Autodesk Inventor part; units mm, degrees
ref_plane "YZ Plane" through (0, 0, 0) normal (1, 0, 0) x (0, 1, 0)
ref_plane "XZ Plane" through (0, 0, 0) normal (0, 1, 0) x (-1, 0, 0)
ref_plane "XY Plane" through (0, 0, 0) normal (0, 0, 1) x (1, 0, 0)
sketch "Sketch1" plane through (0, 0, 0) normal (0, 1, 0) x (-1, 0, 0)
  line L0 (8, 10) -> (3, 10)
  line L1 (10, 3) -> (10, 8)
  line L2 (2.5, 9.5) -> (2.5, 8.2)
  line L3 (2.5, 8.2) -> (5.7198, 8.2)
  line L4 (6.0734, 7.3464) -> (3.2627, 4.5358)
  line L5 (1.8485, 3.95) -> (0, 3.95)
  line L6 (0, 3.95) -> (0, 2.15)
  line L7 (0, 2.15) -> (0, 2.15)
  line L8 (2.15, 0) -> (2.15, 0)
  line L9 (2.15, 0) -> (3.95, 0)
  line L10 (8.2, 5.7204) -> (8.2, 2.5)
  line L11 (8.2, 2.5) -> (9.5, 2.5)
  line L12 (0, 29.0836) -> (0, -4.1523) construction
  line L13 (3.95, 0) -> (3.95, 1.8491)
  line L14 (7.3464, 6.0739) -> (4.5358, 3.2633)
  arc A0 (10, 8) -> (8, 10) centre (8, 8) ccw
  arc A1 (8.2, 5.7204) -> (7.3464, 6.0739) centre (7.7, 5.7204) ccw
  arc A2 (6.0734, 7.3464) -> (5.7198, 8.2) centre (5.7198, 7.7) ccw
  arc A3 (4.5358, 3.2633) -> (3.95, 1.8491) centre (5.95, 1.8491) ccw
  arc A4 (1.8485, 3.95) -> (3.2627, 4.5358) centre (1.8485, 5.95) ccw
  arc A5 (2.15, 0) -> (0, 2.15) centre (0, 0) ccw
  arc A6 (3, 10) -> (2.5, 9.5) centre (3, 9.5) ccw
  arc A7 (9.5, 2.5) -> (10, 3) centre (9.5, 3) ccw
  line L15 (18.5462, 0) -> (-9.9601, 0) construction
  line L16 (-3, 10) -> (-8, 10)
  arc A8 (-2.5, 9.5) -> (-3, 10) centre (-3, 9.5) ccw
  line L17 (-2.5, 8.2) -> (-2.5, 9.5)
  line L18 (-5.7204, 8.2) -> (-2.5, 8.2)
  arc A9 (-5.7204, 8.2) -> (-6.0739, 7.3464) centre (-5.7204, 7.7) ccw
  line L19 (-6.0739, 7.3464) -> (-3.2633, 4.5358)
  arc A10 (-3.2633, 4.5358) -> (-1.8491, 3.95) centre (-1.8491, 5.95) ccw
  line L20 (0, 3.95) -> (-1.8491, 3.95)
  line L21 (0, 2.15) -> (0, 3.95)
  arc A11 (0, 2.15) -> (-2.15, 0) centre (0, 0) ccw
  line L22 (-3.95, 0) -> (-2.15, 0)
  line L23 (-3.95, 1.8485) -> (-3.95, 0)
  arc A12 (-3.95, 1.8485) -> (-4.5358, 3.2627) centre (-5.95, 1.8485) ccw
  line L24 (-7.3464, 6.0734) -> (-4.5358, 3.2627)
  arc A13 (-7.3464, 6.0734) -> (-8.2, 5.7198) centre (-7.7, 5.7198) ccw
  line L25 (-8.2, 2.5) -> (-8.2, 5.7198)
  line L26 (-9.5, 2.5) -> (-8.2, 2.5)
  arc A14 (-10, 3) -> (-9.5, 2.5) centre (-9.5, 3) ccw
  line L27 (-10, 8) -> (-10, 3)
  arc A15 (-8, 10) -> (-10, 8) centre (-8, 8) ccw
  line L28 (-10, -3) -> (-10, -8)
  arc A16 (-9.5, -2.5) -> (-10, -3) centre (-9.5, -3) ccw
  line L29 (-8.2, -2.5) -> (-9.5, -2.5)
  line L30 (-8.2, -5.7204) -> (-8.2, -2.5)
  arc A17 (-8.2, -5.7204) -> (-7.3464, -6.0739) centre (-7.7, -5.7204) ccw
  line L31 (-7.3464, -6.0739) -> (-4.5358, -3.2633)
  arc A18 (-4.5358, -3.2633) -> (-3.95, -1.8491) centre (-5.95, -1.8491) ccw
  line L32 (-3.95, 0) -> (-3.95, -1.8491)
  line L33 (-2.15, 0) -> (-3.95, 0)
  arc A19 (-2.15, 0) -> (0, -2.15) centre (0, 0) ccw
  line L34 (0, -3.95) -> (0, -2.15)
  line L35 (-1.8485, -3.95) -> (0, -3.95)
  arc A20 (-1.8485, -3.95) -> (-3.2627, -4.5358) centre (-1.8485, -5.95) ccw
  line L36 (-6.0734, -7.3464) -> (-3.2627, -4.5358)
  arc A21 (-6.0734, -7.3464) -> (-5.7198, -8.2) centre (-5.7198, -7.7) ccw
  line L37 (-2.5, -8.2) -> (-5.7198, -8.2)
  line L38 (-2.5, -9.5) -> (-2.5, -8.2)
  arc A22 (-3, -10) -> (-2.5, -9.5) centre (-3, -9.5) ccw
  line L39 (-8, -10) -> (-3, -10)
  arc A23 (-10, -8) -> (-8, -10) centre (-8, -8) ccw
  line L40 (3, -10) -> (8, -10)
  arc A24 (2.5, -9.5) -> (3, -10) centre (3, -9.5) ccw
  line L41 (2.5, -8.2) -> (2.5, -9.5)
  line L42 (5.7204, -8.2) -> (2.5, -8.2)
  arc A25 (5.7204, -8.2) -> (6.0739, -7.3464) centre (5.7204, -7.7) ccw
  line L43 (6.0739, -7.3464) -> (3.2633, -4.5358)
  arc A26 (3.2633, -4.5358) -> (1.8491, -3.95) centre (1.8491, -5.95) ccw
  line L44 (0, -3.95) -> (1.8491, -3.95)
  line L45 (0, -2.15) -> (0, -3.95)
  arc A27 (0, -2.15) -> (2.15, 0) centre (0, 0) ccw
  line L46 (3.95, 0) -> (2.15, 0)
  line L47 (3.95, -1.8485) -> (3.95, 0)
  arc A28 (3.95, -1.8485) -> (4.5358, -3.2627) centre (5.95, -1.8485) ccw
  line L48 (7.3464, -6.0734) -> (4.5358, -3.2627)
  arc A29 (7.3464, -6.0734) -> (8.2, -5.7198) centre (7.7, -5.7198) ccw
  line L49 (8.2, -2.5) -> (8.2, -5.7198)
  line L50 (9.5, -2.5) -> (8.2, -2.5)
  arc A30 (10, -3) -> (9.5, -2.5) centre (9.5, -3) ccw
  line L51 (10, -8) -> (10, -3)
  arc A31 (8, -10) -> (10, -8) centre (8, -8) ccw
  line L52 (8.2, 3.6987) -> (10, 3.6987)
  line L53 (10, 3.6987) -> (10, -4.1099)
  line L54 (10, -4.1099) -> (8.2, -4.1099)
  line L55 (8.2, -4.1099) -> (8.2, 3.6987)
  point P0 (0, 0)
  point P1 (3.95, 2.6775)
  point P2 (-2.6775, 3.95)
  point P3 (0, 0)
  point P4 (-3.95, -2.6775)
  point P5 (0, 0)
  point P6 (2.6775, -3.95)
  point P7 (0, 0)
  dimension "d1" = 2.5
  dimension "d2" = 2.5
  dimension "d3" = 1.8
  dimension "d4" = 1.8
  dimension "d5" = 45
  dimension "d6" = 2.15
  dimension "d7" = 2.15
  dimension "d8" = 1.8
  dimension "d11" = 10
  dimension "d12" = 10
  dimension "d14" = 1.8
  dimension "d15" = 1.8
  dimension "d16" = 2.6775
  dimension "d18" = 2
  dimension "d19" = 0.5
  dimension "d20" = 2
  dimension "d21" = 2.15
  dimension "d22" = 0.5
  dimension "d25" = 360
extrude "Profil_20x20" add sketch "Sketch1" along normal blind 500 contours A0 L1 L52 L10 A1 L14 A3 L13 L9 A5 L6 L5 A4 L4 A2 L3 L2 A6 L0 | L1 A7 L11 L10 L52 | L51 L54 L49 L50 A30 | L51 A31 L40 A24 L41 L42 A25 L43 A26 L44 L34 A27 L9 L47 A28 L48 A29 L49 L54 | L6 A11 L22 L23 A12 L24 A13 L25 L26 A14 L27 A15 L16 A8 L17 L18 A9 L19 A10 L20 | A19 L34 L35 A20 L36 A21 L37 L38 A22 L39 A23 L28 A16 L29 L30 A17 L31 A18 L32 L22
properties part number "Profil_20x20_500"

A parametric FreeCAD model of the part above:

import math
import FreeCAD as App
import Part
import Sketcher

V = App.Vector
Q = App.Units.Quantity

doc = App.newDocument("Part")
body = doc.addObject("PartDesign::Body", "Body")

# Sketch on XZ plane
sketch1 = body.newObject("Sketcher::SketchObject", "Sketch")
sketch1.AttachmentSupport = (doc.getObject("XZ_Plane"), [""])
sketch1.MapMode = "FlatFace"
sketch1.addGeometry(Part.ArcOfCircle(Part.Circle(V(-8, 8, 0), V(0, 0, 1), 2), math.radians(90), math.radians(180)), False)
sketch1.addGeometry(Part.LineSegment(V(-8, 10, 0), V(-3, 10, 0)), False)
sketch1.addGeometry(Part.ArcOfCircle(Part.Circle(V(-3, 9.5, 0), V(0, 0, 1), 0.5), math.radians(0), math.radians(90)), False)
sketch1.addGeometry(Part.LineSegment(V(-2.5, 9.5, 0), V(-2.5, 8.2, 0)), False)
sketch1.addGeometry(Part.LineSegment(V(-2.5, 8.2, 0), V(-5.7198, 8.2, 0)), False)
sketch1.addGeometry(Part.ArcOfCircle(Part.Circle(V(-5.7198, 7.7, 0), V(0, 0, 1), 0.500066), math.radians(90), math.radians(225)), False)
sketch1.addGeometry(Part.LineSegment(V(-6.0734, 7.3464, 0), V(-3.2627, 4.5358, 0)), False)
sketch1.addGeometry(Part.ArcOfCircle(Part.Circle(V(-1.8485, 5.95, 0), V(0, 0, 1), 2), math.radians(-135), math.radians(-90)), False)
sketch1.addGeometry(Part.LineSegment(V(-1.8485, 3.95, 0), V(1.8491, 3.95, 0)), False)
sketch1.addGeometry(Part.ArcOfCircle(Part.Circle(V(1.8491, 5.95, 0), V(0, 0, 1), 1.999981), math.radians(-90), math.radians(-45)), False)
sketch1.addGeometry(Part.LineSegment(V(3.2633, 4.5358, 0), V(6.0739, 7.3464, 0)), False)
sketch1.addGeometry(Part.ArcOfCircle(Part.Circle(V(5.7204, 7.7, 0), V(0, 0, 1), 0.5), math.radians(-45.008103), math.radians(90)), False)
sketch1.addGeometry(Part.LineSegment(V(5.7204, 8.2, 0), V(2.5, 8.2, 0)), False)
sketch1.addGeometry(Part.LineSegment(V(2.5, 8.2, 0), V(2.5, 9.5, 0)), False)
sketch1.addGeometry(Part.ArcOfCircle(Part.Circle(V(3, 9.5, 0), V(0, 0, 1), 0.5), math.radians(90), math.radians(180)), False)
sketch1.addGeometry(Part.LineSegment(V(3, 10, 0), V(8, 10, 0)), False)
sketch1.addGeometry(Part.ArcOfCircle(Part.Circle(V(8, 8, 0), V(0, 0, 1), 2), math.radians(0), math.radians(90)), False)
sketch1.addGeometry(Part.LineSegment(V(10, 8, 0), V(10, 3, 0)), False)
sketch1.addGeometry(Part.ArcOfCircle(Part.Circle(V(9.5, 3, 0), V(0, 0, 1), 0.5), math.radians(-90), math.radians(0)), False)
sketch1.addGeometry(Part.LineSegment(V(9.5, 2.5, 0), V(8.2, 2.5, 0)), False)
sketch1.addGeometry(Part.LineSegment(V(8.2, 2.5, 0), V(8.2, 5.7198, 0)), False)
sketch1.addGeometry(Part.ArcOfCircle(Part.Circle(V(7.7, 5.7198, 0), V(0, 0, 1), 0.500066), math.radians(0), math.radians(135)), False)
sketch1.addGeometry(Part.LineSegment(V(7.3464, 6.0734, 0), V(4.5358, 3.2627, 0)), False)
sketch1.addGeometry(Part.ArcOfCircle(Part.Circle(V(5.95, 1.8485, 0), V(0, 0, 1), 2), math.radians(135), math.radians(180)), False)
sketch1.addGeometry(Part.LineSegment(V(3.95, 1.8485, 0), V(3.95, -1.8491, 0)), False)
sketch1.addGeometry(Part.ArcOfCircle(Part.Circle(V(5.95, -1.8491, 0), V(0, 0, 1), 1.999981), math.radians(180), math.radians(225)), False)
sketch1.addGeometry(Part.LineSegment(V(4.5358, -3.2633, 0), V(7.3464, -6.0739, 0)), False)
sketch1.addGeometry(Part.ArcOfCircle(Part.Circle(V(7.7, -5.7204, 0), V(0, 0, 1), 0.5), math.radians(-135.008103), math.radians(0)), False)
sketch1.addGeometry(Part.LineSegment(V(8.2, -5.7204, 0), V(8.2, -2.5, 0)), False)
sketch1.addGeometry(Part.LineSegment(V(8.2, -2.5, 0), V(9.5, -2.5, 0)), False)
sketch1.addGeometry(Part.ArcOfCircle(Part.Circle(V(9.5, -3, 0), V(0, 0, 1), 0.5), math.radians(0), math.radians(90)), False)
sketch1.addGeometry(Part.LineSegment(V(10, -3, 0), V(10, -8, 0)), False)
sketch1.addGeometry(Part.ArcOfCircle(Part.Circle(V(8, -8, 0), V(0, 0, 1), 2), math.radians(-90), math.radians(0)), False)
sketch1.addGeometry(Part.LineSegment(V(8, -10, 0), V(3, -10, 0)), False)
sketch1.addGeometry(Part.ArcOfCircle(Part.Circle(V(3, -9.5, 0), V(0, 0, 1), 0.5), math.radians(180), math.radians(270)), False)
sketch1.addGeometry(Part.LineSegment(V(2.5, -9.5, 0), V(2.5, -8.2, 0)), False)
sketch1.addGeometry(Part.LineSegment(V(2.5, -8.2, 0), V(5.7198, -8.2, 0)), False)
sketch1.addGeometry(Part.ArcOfCircle(Part.Circle(V(5.7198, -7.7, 0), V(0, 0, 1), 0.500066), math.radians(-90), math.radians(45)), False)
sketch1.addGeometry(Part.LineSegment(V(6.0734, -7.3464, 0), V(3.2627, -4.5358, 0)), False)
sketch1.addGeometry(Part.ArcOfCircle(Part.Circle(V(1.8485, -5.95, 0), V(0, 0, 1), 2), math.radians(45), math.radians(90)), False)
sketch1.addGeometry(Part.LineSegment(V(1.8485, -3.95, 0), V(-1.8491, -3.95, 0)), False)
sketch1.addGeometry(Part.ArcOfCircle(Part.Circle(V(-1.8491, -5.95, 0), V(0, 0, 1), 1.999981), math.radians(90), math.radians(135)), False)
sketch1.addGeometry(Part.LineSegment(V(-3.2633, -4.5358, 0), V(-6.0739, -7.3464, 0)), False)
sketch1.addGeometry(Part.ArcOfCircle(Part.Circle(V(-5.7204, -7.7, 0), V(0, 0, 1), 0.5), math.radians(134.991897), math.radians(270)), False)
sketch1.addGeometry(Part.LineSegment(V(-5.7204, -8.2, 0), V(-2.5, -8.2, 0)), False)
sketch1.addGeometry(Part.LineSegment(V(-2.5, -8.2, 0), V(-2.5, -9.5, 0)), False)
sketch1.addGeometry(Part.ArcOfCircle(Part.Circle(V(-3, -9.5, 0), V(0, 0, 1), 0.5), math.radians(-90), math.radians(0)), False)
sketch1.addGeometry(Part.LineSegment(V(-3, -10, 0), V(-8, -10, 0)), False)
sketch1.addGeometry(Part.ArcOfCircle(Part.Circle(V(-8, -8, 0), V(0, 0, 1), 2), math.radians(180), math.radians(270)), False)
sketch1.addGeometry(Part.LineSegment(V(-10, -8, 0), V(-10, -3, 0)), False)
sketch1.addGeometry(Part.ArcOfCircle(Part.Circle(V(-9.5, -3, 0), V(0, 0, 1), 0.5), math.radians(90), math.radians(180)), False)
sketch1.addGeometry(Part.LineSegment(V(-9.5, -2.5, 0), V(-8.2, -2.5, 0)), False)
sketch1.addGeometry(Part.LineSegment(V(-8.2, -2.5, 0), V(-8.2, -5.7198, 0)), False)
sketch1.addGeometry(Part.ArcOfCircle(Part.Circle(V(-7.7, -5.7198, 0), V(0, 0, 1), 0.500066), math.radians(180), math.radians(315)), False)
sketch1.addGeometry(Part.LineSegment(V(-7.3464, -6.0734, 0), V(-4.5358, -3.2627, 0)), False)
sketch1.addGeometry(Part.ArcOfCircle(Part.Circle(V(-5.95, -1.8485, 0), V(0, 0, 1), 2), math.radians(-45), math.radians(0)), False)
sketch1.addGeometry(Part.LineSegment(V(-3.95, -1.8485, 0), V(-3.95, 1.8491, 0)), False)
sketch1.addGeometry(Part.ArcOfCircle(Part.Circle(V(-5.95, 1.8491, 0), V(0, 0, 1), 1.999981), math.radians(0), math.radians(45)), False)
sketch1.addGeometry(Part.LineSegment(V(-4.5358, 3.2633, 0), V(-7.3464, 6.0739, 0)), False)
sketch1.addGeometry(Part.ArcOfCircle(Part.Circle(V(-7.7, 5.7204, 0), V(0, 0, 1), 0.5), math.radians(44.991897), math.radians(180)), False)
sketch1.addGeometry(Part.LineSegment(V(-8.2, 5.7204, 0), V(-8.2, 2.5, 0)), False)
sketch1.addGeometry(Part.LineSegment(V(-8.2, 2.5, 0), V(-9.5, 2.5, 0)), False)
sketch1.addGeometry(Part.ArcOfCircle(Part.Circle(V(-9.5, 3, 0), V(0, 0, 1), 0.5), math.radians(180), math.radians(270)), False)
sketch1.addGeometry(Part.LineSegment(V(-10, 3, 0), V(-10, 8, 0)), False)
sketch1.addGeometry(Part.Circle(V(0, 0, 0), V(0, 0, 1), 2.15), False)
sketch1.addConstraint(Sketcher.Constraint("Tangent", 0, 1, 1, 1))
sketch1.addConstraint(Sketcher.Constraint("Tangent", 1, 2, 2, 2))
sketch1.addConstraint(Sketcher.Constraint("Tangent", 2, 1, 3, 1))
sketch1.addConstraint(Sketcher.Constraint("Coincident", 3, 2, 4, 1))
sketch1.addConstraint(Sketcher.Constraint("Tangent", 4, 2, 5, 1))
sketch1.addConstraint(Sketcher.Constraint("Tangent", 5, 2, 6, 1))
sketch1.addConstraint(Sketcher.Constraint("Tangent", 6, 2, 7, 1))
sketch1.addConstraint(Sketcher.Constraint("Tangent", 7, 2, 8, 1))
sketch1.addConstraint(Sketcher.Constraint("Tangent", 8, 2, 9, 1))
sketch1.addConstraint(Sketcher.Constraint("Tangent", 9, 2, 10, 1))
sketch1.addConstraint(Sketcher.Constraint("Tangent", 10, 2, 11, 1))
sketch1.addConstraint(Sketcher.Constraint("Tangent", 11, 2, 12, 1))
sketch1.addConstraint(Sketcher.Constraint("Coincident", 12, 2, 13, 1))
sketch1.addConstraint(Sketcher.Constraint("Tangent", 13, 2, 14, 2))
sketch1.addConstraint(Sketcher.Constraint("Tangent", 14, 1, 15, 1))
sketch1.addConstraint(Sketcher.Constraint("Tangent", 15, 2, 16, 2))
sketch1.addConstraint(Sketcher.Constraint("Tangent", 16, 1, 17, 1))
sketch1.addConstraint(Sketcher.Constraint("Tangent", 17, 2, 18, 2))
sketch1.addConstraint(Sketcher.Constraint("Tangent", 18, 1, 19, 1))
sketch1.addConstraint(Sketcher.Constraint("Coincident", 19, 2, 20, 1))
sketch1.addConstraint(Sketcher.Constraint("Tangent", 20, 2, 21, 1))
sketch1.addConstraint(Sketcher.Constraint("Tangent", 21, 2, 22, 1))
sketch1.addConstraint(Sketcher.Constraint("Tangent", 22, 2, 23, 1))
sketch1.addConstraint(Sketcher.Constraint("Tangent", 23, 2, 24, 1))
sketch1.addConstraint(Sketcher.Constraint("Tangent", 24, 2, 25, 1))
sketch1.addConstraint(Sketcher.Constraint("Tangent", 25, 2, 26, 1))
sketch1.addConstraint(Sketcher.Constraint("Tangent", 26, 2, 27, 1))
sketch1.addConstraint(Sketcher.Constraint("Tangent", 27, 2, 28, 1))
sketch1.addConstraint(Sketcher.Constraint("Coincident", 28, 2, 29, 1))
sketch1.addConstraint(Sketcher.Constraint("Tangent", 29, 2, 30, 2))
sketch1.addConstraint(Sketcher.Constraint("Tangent", 30, 1, 31, 1))
sketch1.addConstraint(Sketcher.Constraint("Tangent", 31, 2, 32, 2))
sketch1.addConstraint(Sketcher.Constraint("Tangent", 32, 1, 33, 1))
sketch1.addConstraint(Sketcher.Constraint("Tangent", 33, 2, 34, 2))
sketch1.addConstraint(Sketcher.Constraint("Tangent", 34, 1, 35, 1))
sketch1.addConstraint(Sketcher.Constraint("Coincident", 35, 2, 36, 1))
sketch1.addConstraint(Sketcher.Constraint("Tangent", 36, 2, 37, 1))
sketch1.addConstraint(Sketcher.Constraint("Tangent", 37, 2, 38, 1))
sketch1.addConstraint(Sketcher.Constraint("Tangent", 38, 2, 39, 1))
sketch1.addConstraint(Sketcher.Constraint("Tangent", 39, 2, 40, 1))
sketch1.addConstraint(Sketcher.Constraint("Tangent", 40, 2, 41, 1))
sketch1.addConstraint(Sketcher.Constraint("Tangent", 41, 2, 42, 1))
sketch1.addConstraint(Sketcher.Constraint("Tangent", 42, 2, 43, 1))
sketch1.addConstraint(Sketcher.Constraint("Tangent", 43, 2, 44, 1))
sketch1.addConstraint(Sketcher.Constraint("Coincident", 44, 2, 45, 1))
sketch1.addConstraint(Sketcher.Constraint("Tangent", 45, 2, 46, 2))
sketch1.addConstraint(Sketcher.Constraint("Tangent", 46, 1, 47, 1))
sketch1.addConstraint(Sketcher.Constraint("Tangent", 47, 2, 48, 2))
sketch1.addConstraint(Sketcher.Constraint("Tangent", 48, 1, 49, 1))
sketch1.addConstraint(Sketcher.Constraint("Tangent", 49, 2, 50, 2))
sketch1.addConstraint(Sketcher.Constraint("Tangent", 50, 1, 51, 1))
sketch1.addConstraint(Sketcher.Constraint("Coincident", 51, 2, 52, 1))
sketch1.addConstraint(Sketcher.Constraint("Tangent", 52, 2, 53, 1))
sketch1.addConstraint(Sketcher.Constraint("Tangent", 53, 2, 54, 1))
sketch1.addConstraint(Sketcher.Constraint("Tangent", 54, 2, 55, 1))
sketch1.addConstraint(Sketcher.Constraint("Tangent", 55, 2, 56, 1))
sketch1.addConstraint(Sketcher.Constraint("Tangent", 56, 2, 57, 1))
sketch1.addConstraint(Sketcher.Constraint("Tangent", 57, 2, 58, 1))
sketch1.addConstraint(Sketcher.Constraint("Tangent", 58, 2, 59, 1))
sketch1.addConstraint(Sketcher.Constraint("Tangent", 59, 2, 60, 1))
sketch1.addConstraint(Sketcher.Constraint("Coincident", 60, 2, 61, 1))
sketch1.addConstraint(Sketcher.Constraint("Tangent", 61, 2, 62, 2))
sketch1.addConstraint(Sketcher.Constraint("Tangent", 62, 1, 63, 1))
sketch1.addConstraint(Sketcher.Constraint("Tangent", 63, 2, 0, 2))
sketch1.addConstraint(Sketcher.Constraint("Horizontal", 1))
sketch1.addConstraint(Sketcher.Constraint("Vertical", 3))
sketch1.addConstraint(Sketcher.Constraint("Horizontal", 4))
sketch1.addConstraint(Sketcher.Constraint("Horizontal", 8))
sketch1.addConstraint(Sketcher.Constraint("Horizontal", 12))
sketch1.addConstraint(Sketcher.Constraint("Vertical", 13))
sketch1.addConstraint(Sketcher.Constraint("Horizontal", 15))
sketch1.addConstraint(Sketcher.Constraint("Vertical", 17))
sketch1.addConstraint(Sketcher.Constraint("Horizontal", 19))
sketch1.addConstraint(Sketcher.Constraint("Vertical", 20))
sketch1.addConstraint(Sketcher.Constraint("Vertical", 24))
sketch1.addConstraint(Sketcher.Constraint("Vertical", 28))
sketch1.addConstraint(Sketcher.Constraint("Horizontal", 29))
sketch1.addConstraint(Sketcher.Constraint("Vertical", 31))
sketch1.addConstraint(Sketcher.Constraint("Horizontal", 33))
sketch1.addConstraint(Sketcher.Constraint("Vertical", 35))
sketch1.addConstraint(Sketcher.Constraint("Horizontal", 36))
sketch1.addConstraint(Sketcher.Constraint("Horizontal", 40))
sketch1.addConstraint(Sketcher.Constraint("Horizontal", 44))
sketch1.addConstraint(Sketcher.Constraint("Vertical", 45))
sketch1.addConstraint(Sketcher.Constraint("Horizontal", 47))
sketch1.addConstraint(Sketcher.Constraint("Vertical", 49))
sketch1.addConstraint(Sketcher.Constraint("Horizontal", 51))
sketch1.addConstraint(Sketcher.Constraint("Vertical", 52))
sketch1.addConstraint(Sketcher.Constraint("Vertical", 56))
sketch1.addConstraint(Sketcher.Constraint("Vertical", 60))
sketch1.addConstraint(Sketcher.Constraint("Horizontal", 61))
sketch1.addConstraint(Sketcher.Constraint("Vertical", 63))
sketch1.addConstraint(Sketcher.Constraint("Coincident", 64, 3, -1, 1))
sketch1.addConstraint(Sketcher.Constraint("Equal", 2, 5))
sketch1.addConstraint(Sketcher.Constraint("Equal", 0, 7))
sketch1.addConstraint(Sketcher.Constraint("Equal", 7, 9))
sketch1.addConstraint(Sketcher.Constraint("Equal", 5, 11))
sketch1.addConstraint(Sketcher.Constraint("Equal", 11, 14))
sketch1.addConstraint(Sketcher.Constraint("Equal", 9, 16))
sketch1.addConstraint(Sketcher.Constraint("Equal", 14, 18))
sketch1.addConstraint(Sketcher.Constraint("Equal", 18, 21))
sketch1.addConstraint(Sketcher.Constraint("Equal", 16, 23))
sketch1.addConstraint(Sketcher.Constraint("Equal", 23, 25))
sketch1.addConstraint(Sketcher.Constraint("Equal", 21, 27))
sketch1.addConstraint(Sketcher.Constraint("Equal", 27, 30))
sketch1.addConstraint(Sketcher.Constraint("Equal", 25, 32))
sketch1.addConstraint(Sketcher.Constraint("Equal", 30, 34))
sketch1.addConstraint(Sketcher.Constraint("Equal", 34, 37))
sketch1.addConstraint(Sketcher.Constraint("Equal", 32, 39))
sketch1.addConstraint(Sketcher.Constraint("Equal", 39, 41))
sketch1.addConstraint(Sketcher.Constraint("Equal", 37, 43))
sketch1.addConstraint(Sketcher.Constraint("Equal", 43, 46))
sketch1.addConstraint(Sketcher.Constraint("Equal", 41, 48))
sketch1.addConstraint(Sketcher.Constraint("Equal", 46, 50))
sketch1.addConstraint(Sketcher.Constraint("Equal", 50, 53))
sketch1.addConstraint(Sketcher.Constraint("Equal", 48, 55))
sketch1.addConstraint(Sketcher.Constraint("Equal", 55, 57))
sketch1.addConstraint(Sketcher.Constraint("Equal", 53, 59))
sketch1.addConstraint(Sketcher.Constraint("Equal", 59, 62))
sketch1.addConstraint(Sketcher.Constraint("Symmetric", 0, 3, 32, 3, -1, 1))
sketch1.addConstraint(Sketcher.Constraint("Symmetric", 5, 3, 37, 3, -1, 1))
sketch1.addConstraint(Sketcher.Constraint("Symmetric", 7, 3, 39, 3, -1, 1))
sketch1.addConstraint(Sketcher.Constraint("Symmetric", 11, 3, 43, 3, -1, 1))
sketch1.addConstraint(Sketcher.Constraint("Symmetric", 14, 3, 46, 3, -1, 1))
sketch1.addConstraint(Sketcher.Constraint("Symmetric", 18, 3, 50, 3, -1, 1))
sketch1.addConstraint(Sketcher.Constraint("Symmetric", 21, 3, 53, 3, -1, 1))
sketch1.addConstraint(Sketcher.Constraint("Symmetric", 23, 3, 55, 3, -1, 1))
sketch1.addConstraint(Sketcher.Constraint("Symmetric", 27, 3, 59, 3, -1, 1))
sketch1.addConstraint(Sketcher.Constraint("Symmetric", 2, 3, 14, 3, -2))
sketch1.addConstraint(Sketcher.Constraint("Symmetric", 30, 3, 50, 3, -2))
sketch1.addConstraint(Sketcher.Constraint("Symmetric", 35, 2, 44, 2, -2))
sketch1.addConstraint(Sketcher.Constraint("Symmetric", 19, 2, 60, 2, -2))
sketch1.addConstraint(Sketcher.Constraint("Perpendicular", 6, 10))
sketch1.addConstraint(Sketcher.Constraint("Parallel", 10, 22))
sketch1.addConstraint(Sketcher.Constraint("Perpendicular", 22, 26))
sketch1.addConstraint(Sketcher.Constraint("Perpendicular", 38, 42))
sketch1.addConstraint(Sketcher.Constraint("Perpendicular", 54, 58))
sketch1.addConstraint(Sketcher.Constraint("Horizontal", 6, 2, 9, 2))
sketch1.addConstraint(Sketcher.Constraint("Equal", 61, 3))
sketch1.addConstraint(Sketcher.Constraint("Equal", 47, 17))
sketch1.addConstraint(Sketcher.Constraint("Equal", 36, 20))
sketch1.addConstraint(Sketcher.Constraint("Equal", 40, 24))
sketch1.addConstraint(Sketcher.Constraint("Equal", 44, 28))
sketch1.addConstraint(Sketcher.Constraint("Equal", 10, 22))
sketch1.addConstraint(Sketcher.Constraint("Radius", 0, Q("2 mm")))
sketch1.addConstraint(Sketcher.Constraint("Diameter", 64, Q("4.3 mm")))
sketch1.addConstraint(Sketcher.Constraint("Radius", 2, Q("0.5 mm")))
sketch1.addConstraint(Sketcher.Constraint("DistanceY", -1, 1, 0, 1, Q("10 mm")))
sketch1.addConstraint(Sketcher.Constraint("DistanceX", 2, 1, -1, 1, Q("2.5 mm")))
sketch1.addConstraint(Sketcher.Constraint("DistanceX", 19, 2, 19, 1, Q("1.3 mm")))
sketch1.addConstraint(Sketcher.Constraint("DistanceY", -1, 1, 7, 3, Q("5.95 mm")))
sketch1.addConstraint(Sketcher.Constraint("DistanceX", 4, 2, 4, 1, Q("3.2198 mm")))
sketch1.addConstraint(Sketcher.Constraint("DistanceX", 8, 1, 8, 2, Q("3.6976 mm")))
pad1 = body.newObject("PartDesign::Pad", "Pad")
pad1.Profile = sketch1
pad1.Length = 500
pad1.Reversed = True

doc.recompute()
